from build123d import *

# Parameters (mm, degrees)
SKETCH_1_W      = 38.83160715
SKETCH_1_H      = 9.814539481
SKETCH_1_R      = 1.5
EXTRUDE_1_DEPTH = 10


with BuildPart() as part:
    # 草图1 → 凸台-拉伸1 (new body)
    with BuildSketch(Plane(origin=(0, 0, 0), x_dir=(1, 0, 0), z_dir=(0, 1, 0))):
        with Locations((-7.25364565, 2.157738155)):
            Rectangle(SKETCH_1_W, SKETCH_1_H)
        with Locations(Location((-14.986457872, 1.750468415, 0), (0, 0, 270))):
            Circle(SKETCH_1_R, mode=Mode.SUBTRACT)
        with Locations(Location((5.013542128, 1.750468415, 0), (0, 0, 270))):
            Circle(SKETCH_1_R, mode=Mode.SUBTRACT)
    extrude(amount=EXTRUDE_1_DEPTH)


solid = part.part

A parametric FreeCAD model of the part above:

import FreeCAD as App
import Part
import Sketcher
from FreeCAD import Vector
Q = App.Units.Quantity

doc = App.newDocument("Part")
params = doc.addObject("Spreadsheet::Sheet", "Params")
for row, (alias, value) in enumerate([
    ("sketch1_diameter", "3 mm"),
    ("pad1_length", "10 mm"),
], start=1):
    params.set(f"A{row}", alias)
    params.set(f"B{row}", "=" + value)
    params.setAlias(f"B{row}", alias)

body = doc.addObject("PartDesign::Body", "Body")

# Sketch on XZ plane
sketch1 = doc.addObject("Sketcher::SketchObject", "Sketch")
body.addObject(sketch1)
sketch1.AttachmentSupport = (doc.XZ_Plane, [""])
sketch1.MapMode = "FlatFace"
sketch1.addGeometry([
    Part.LineSegment(Vector(-26.7, -7.1, 0), Vector(-26.7, 2.7, 0)),  # 0
    Part.LineSegment(Vector(-26.7, 2.7, 0), Vector(12.2, 2.7, 0)),  # 1
    Part.LineSegment(Vector(12.2, 2.7, 0), Vector(12.2, -7.1, 0)),  # 2
    Part.LineSegment(Vector(12.2, -7.1, 0), Vector(-26.7, -7.1, 0)),  # 3
    Part.Circle(Vector(-15, -1.8, 0), Vector(0, 0, 1), 1.5),  # 4
    Part.Circle(Vector(5, -1.8, 0), Vector(0, 0, 1), 1.5),  # 5
], False)
sketch1.addConstraint([
    Sketcher.Constraint("Coincident", 0, 2, 1, 1),
    Sketcher.Constraint("Coincident", 1, 2, 2, 1),
    Sketcher.Constraint("Coincident", 2, 2, 3, 1),
    Sketcher.Constraint("Coincident", 3, 2, 0, 1),
    Sketcher.Constraint("Vertical", 0),
    Sketcher.Constraint("Horizontal", 1),
    Sketcher.Constraint("Vertical", 2),
    Sketcher.Constraint("Horizontal", 3),
    Sketcher.Constraint("Equal", 4, 5),
    Sketcher.Constraint("Horizontal", 4, 3, 5, 3),
    Sketcher.Constraint("Diameter", 4, Q("3 mm")),
    Sketcher.Constraint("DistanceX", 4, 3, 5, 3, Q("20 mm")),
    Sketcher.Constraint("DistanceY", 4, 3, 0, 2, Q("4.5 mm")),
    Sketcher.Constraint("DistanceY", 0, 1, 0, 2, Q("9.814539 mm")),
    Sketcher.Constraint("DistanceX", 1, 1, 1, 2, Q("38.831607 mm")),
    Sketcher.Constraint("DistanceY", 4, 3, -1, 1, Q("1.750468 mm")),
    Sketcher.Constraint("DistanceX", 0, 2, -1, 1, Q("26.669449 mm")),
    Sketcher.Constraint("DistanceX", 0, 2, 4, 3, Q("11.682991 mm")),
])
sketch1.setExpression("Constraints[10]", "Params.sketch1_diameter")
pad1 = doc.addObject("PartDesign::Pad", "Pad")
body.addObject(pad1)
pad1.Profile = sketch1
pad1.setExpression("Length", "Params.pad1_length")
pad1.Reversed = True

doc.recompute()
